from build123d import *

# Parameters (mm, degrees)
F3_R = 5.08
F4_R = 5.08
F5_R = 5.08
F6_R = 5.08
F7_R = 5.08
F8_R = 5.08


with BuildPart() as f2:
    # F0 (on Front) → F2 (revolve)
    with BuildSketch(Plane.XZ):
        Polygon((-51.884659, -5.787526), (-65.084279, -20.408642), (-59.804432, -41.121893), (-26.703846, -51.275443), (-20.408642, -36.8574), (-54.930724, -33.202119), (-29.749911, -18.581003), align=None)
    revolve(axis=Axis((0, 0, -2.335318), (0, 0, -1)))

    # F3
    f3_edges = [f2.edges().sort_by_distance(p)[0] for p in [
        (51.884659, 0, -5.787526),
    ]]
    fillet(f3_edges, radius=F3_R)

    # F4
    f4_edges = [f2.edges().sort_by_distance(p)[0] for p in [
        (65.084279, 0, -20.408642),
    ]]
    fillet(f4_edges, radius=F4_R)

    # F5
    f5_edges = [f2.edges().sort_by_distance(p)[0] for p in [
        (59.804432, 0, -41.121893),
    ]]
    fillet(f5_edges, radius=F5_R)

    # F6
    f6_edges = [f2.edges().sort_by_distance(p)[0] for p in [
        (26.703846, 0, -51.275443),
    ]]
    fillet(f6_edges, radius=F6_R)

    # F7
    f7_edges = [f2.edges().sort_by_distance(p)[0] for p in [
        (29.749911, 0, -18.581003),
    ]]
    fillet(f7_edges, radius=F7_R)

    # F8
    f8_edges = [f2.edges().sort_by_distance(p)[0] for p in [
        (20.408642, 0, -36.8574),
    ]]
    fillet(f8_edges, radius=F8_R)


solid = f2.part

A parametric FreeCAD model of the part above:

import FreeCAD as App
import Part
import Sketcher
from FreeCAD import Vector
Q = App.Units.Quantity


def edges_at(feature, points):
    """Names of the edges that pass closest to the given points."""
    edges = feature.Shape.Edges
    near = lambda p: min(range(len(edges)), key=lambda i: edges[i].distToShape(Part.Vertex(*p))[0])
    return sorted({f"Edge{near(p) + 1}" for p in points})

doc = App.newDocument("Part")
body = doc.addObject("PartDesign::Body", "Body")

# Sketch on XZ plane
sketch1 = body.newObject("Sketcher::SketchObject", "Sketch")
sketch1.AttachmentSupport = (doc.getObject("XZ_Plane"), [""])
sketch1.MapMode = "FlatFace"
sketch1.addGeometry([
    Part.LineSegment(Vector(-52, -6, 0), Vector(-65, -20, 0)),  # 0
    Part.LineSegment(Vector(-65, -20, 0), Vector(-60, -41, 0)),  # 1
    Part.LineSegment(Vector(-60, -41, 0), Vector(-27, -51, 0)),  # 2
    Part.LineSegment(Vector(-27, -51, 0), Vector(-20, -37, 0)),  # 3
    Part.LineSegment(Vector(-20, -37, 0), Vector(-55, -33, 0)),  # 4
    Part.LineSegment(Vector(-55, -33, 0), Vector(-30, -19, 0)),  # 5
    Part.LineSegment(Vector(-30, -19, 0), Vector(-52, -6, 0)),  # 6
], False)
sketch1.addConstraint([
    Sketcher.Constraint("Coincident", 0, 2, 1, 1),
    Sketcher.Constraint("Coincident", 1, 2, 2, 1),
    Sketcher.Constraint("Coincident", 2, 2, 3, 1),
    Sketcher.Constraint("Coincident", 3, 2, 4, 1),
    Sketcher.Constraint("Coincident", 4, 2, 5, 1),
    Sketcher.Constraint("Coincident", 5, 2, 6, 1),
    Sketcher.Constraint("Coincident", 6, 2, 0, 1),
    Sketcher.Constraint("DistanceY", 3, 2, -1, 1, Q("36.8574 mm")),
    Sketcher.Constraint("DistanceY", 2, 2, 0, 2, Q("30.866801 mm")),
    Sketcher.Constraint("Distance", 5, Q("29.11787 mm")),
    Sketcher.Constraint("DistanceX", 0, 2, -1, 1, Q("65.084279 mm")),
    Sketcher.Constraint("DistanceX", 1, 2, -1, 1, Q("59.804432 mm")),
    Sketcher.Constraint("DistanceY", 4, 2, -1, 1, Q("33.202119 mm")),
    Sketcher.Constraint("DistanceX", 5, 2, -1, 1, Q("29.749911 mm")),
    Sketcher.Constraint("DistanceX", 6, 2, -1, 1, Q("51.884659 mm")),
    Sketcher.Constraint("DistanceY", 1, 2, 0, 2, Q("20.713251 mm")),
    Sketcher.Constraint("DistanceX", 1, 2, 3, 2, Q("39.39579 mm")),
    Sketcher.Constraint("DistanceX", 1, 2, 4, 2, Q("4.873708 mm")),
    Sketcher.Constraint("DistanceY", 2, 2, 5, 2, Q("32.69444 mm")),
    Sketcher.Constraint("Distance", 0, Q("19.697893 mm")),
    Sketcher.Constraint("Distance", 2, Q("34.622874 mm")),
])
revolution = body.newObject("PartDesign::Revolution", "Revolution")
revolution.Profile = sketch1
revolution.ReferenceAxis = (sketch1, ["V_Axis"])
revolution.Angle = 360
doc.recompute()

fillet = body.newObject("PartDesign::Fillet", "Fillet")
fillet.Base = (revolution, edges_at(revolution, [(51.885, 0, -5.788)]))
fillet.Radius = Q("0.2 in")
doc.recompute()

fillet2 = body.newObject("PartDesign::Fillet", "Fillet001")
fillet2.Base = (fillet, edges_at(fillet, [(65.084, 0, -20.409)]))
fillet2.Radius = Q("0.2 in")
doc.recompute()

fillet3 = body.newObject("PartDesign::Fillet", "Fillet002")
fillet3.Base = (fillet2, edges_at(fillet2, [(59.804, 0, -41.122)]))
fillet3.Radius = Q("0.2 in")
doc.recompute()

fillet4 = body.newObject("PartDesign::Fillet", "Fillet003")
fillet4.Base = (fillet3, edges_at(fillet3, [(26.704, 0, -51.275)]))
fillet4.Radius = Q("0.2 in")
doc.recompute()

fillet5 = body.newObject("PartDesign::Fillet", "Fillet004")
fillet5.Base = (fillet4, edges_at(fillet4, [(29.75, 0, -18.581)]))
fillet5.Radius = Q("0.2 in")
doc.recompute()

fillet6 = body.newObject("PartDesign::Fillet", "Fillet005")
fillet6.Base = (fillet5, edges_at(fillet5, [(20.409, 0, -36.857)]))
fillet6.Radius = Q("0.2 in")

doc.recompute()
